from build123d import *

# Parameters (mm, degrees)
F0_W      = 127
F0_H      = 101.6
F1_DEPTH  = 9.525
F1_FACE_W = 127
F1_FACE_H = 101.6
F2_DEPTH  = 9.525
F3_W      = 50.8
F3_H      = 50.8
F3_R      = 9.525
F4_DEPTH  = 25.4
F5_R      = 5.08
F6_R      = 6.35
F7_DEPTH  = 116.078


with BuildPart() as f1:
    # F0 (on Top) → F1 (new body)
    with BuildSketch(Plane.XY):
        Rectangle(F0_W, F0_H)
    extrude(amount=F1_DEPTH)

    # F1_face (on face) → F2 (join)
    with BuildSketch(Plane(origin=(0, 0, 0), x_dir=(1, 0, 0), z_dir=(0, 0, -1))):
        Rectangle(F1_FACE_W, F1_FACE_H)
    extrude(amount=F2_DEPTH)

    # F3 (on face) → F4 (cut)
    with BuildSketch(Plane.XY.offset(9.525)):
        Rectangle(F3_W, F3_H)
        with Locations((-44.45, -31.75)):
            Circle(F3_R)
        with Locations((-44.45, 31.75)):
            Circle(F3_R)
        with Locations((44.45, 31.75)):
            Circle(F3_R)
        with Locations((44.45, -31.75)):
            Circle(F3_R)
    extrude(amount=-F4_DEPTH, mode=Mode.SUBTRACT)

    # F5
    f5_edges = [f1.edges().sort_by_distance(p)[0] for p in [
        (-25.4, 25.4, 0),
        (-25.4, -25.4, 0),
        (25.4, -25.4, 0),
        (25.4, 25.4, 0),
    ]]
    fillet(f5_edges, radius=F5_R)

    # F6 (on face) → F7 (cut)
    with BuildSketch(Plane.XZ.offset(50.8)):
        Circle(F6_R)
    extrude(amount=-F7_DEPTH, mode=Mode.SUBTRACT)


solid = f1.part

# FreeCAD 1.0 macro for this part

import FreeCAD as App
import Part
import Sketcher
from FreeCAD import Vector
Q = App.Units.Quantity


def edges_at(feature, points):
    """Names of the edges that pass closest to the given points."""
    edges = feature.Shape.Edges
    near = lambda p: min(range(len(edges)), key=lambda i: edges[i].distToShape(Part.Vertex(*p))[0])
    return sorted({f"Edge{near(p) + 1}" for p in points})


def add_polygon(sketch, points):
    """Adds a closed chain of lines whose ends are joined by coincident constraints."""
    first, n = sketch.GeometryCount, len(points)
    for a, b in zip(points, points[1:] + points[:1]):
        sketch.addGeometry(Part.LineSegment(App.Vector(*a, 0), App.Vector(*b, 0)), False)
    for i in range(n):
        sketch.addConstraint(Sketcher.Constraint("Coincident", first + i, 2, first + (i + 1) % n, 1))

doc = App.newDocument("Part")
params = doc.addObject("Spreadsheet::Sheet", "Params")
for row, (alias, value) in enumerate([
    ("sketch1_width", "5 in"),
    ("sketch1_height", "4 in"),
    ("pad1_length", "0.375 in"),
    ("sketch2_width", "5 in"),
    ("sketch2_height", "4 in"),
    ("pad2_length", "0.375 in"),
    ("sketch3_diameter", "0.75 in"),
    ("sketch3_width", "2 in"),
    ("pocket1_length", "1 in"),
    ("fillet_radius", "0.2 in"),
    ("sketch4_diameter", "0.5 in"),
    ("pocket2_length", "4.57 in"),
], start=1):
    params.set(f"A{row}", alias)
    params.set(f"B{row}", "=" + value)
    params.setAlias(f"B{row}", alias)

body = doc.addObject("PartDesign::Body", "Body")

# Sketch on XY plane
sketch1 = body.newObject("Sketcher::SketchObject", "Sketch")
sketch1.AttachmentSupport = (doc.getObject("XY_Plane"), [""])
sketch1.MapMode = "FlatFace"
add_polygon(sketch1, [(-63.5, 50.8), (-63.5, -50.8), (63.5, -50.8), (63.5, 50.8)])  # lines 0-3
sketch1.addConstraint(Sketcher.Constraint("Vertical", 0))
sketch1.addConstraint(Sketcher.Constraint("Horizontal", 1))
sketch1.addConstraint(Sketcher.Constraint("Vertical", 2))
sketch1.addConstraint(Sketcher.Constraint("Horizontal", 3))
sketch1.addConstraint(Sketcher.Constraint("Symmetric", 0, 2, 2, 2, -1, 1))
sketch1.addConstraint(Sketcher.Constraint("DistanceX", 1, 1, 1, 2, Q("5 in")))
sketch1.addConstraint(Sketcher.Constraint("DistanceY", 0, 2, 0, 1, Q("4 in")))
sketch1.setExpression("Constraints[9]", "Params.sketch1_width")
sketch1.setExpression("Constraints[10]", "Params.sketch1_height")
pad1 = body.newObject("PartDesign::Pad", "Pad")
pad1.Profile = sketch1
pad1.setExpression("Length", "Params.pad1_length")

# Sketch on XY plane
sketch2 = body.newObject("Sketcher::SketchObject", "Sketch001")
sketch2.AttachmentSupport = (doc.getObject("XY_Plane"), [""])
sketch2.MapMode = "FlatFace"
add_polygon(sketch2, [(-63.5, -50.8), (-63.5, 50.8), (63.5, 50.8), (63.5, -50.8)])  # lines 0-3
sketch2.addConstraint(Sketcher.Constraint("Vertical", 0))
sketch2.addConstraint(Sketcher.Constraint("Horizontal", 1))
sketch2.addConstraint(Sketcher.Constraint("Vertical", 2))
sketch2.addConstraint(Sketcher.Constraint("Horizontal", 3))
sketch2.addConstraint(Sketcher.Constraint("Symmetric", 0, 2, 2, 2, -1, 1))
sketch2.addConstraint(Sketcher.Constraint("DistanceX", 1, 1, 1, 2, Q("5 in")))
sketch2.addConstraint(Sketcher.Constraint("DistanceY", 0, 1, 0, 2, Q("4 in")))
sketch2.setExpression("Constraints[9]", "Params.sketch2_width")
sketch2.setExpression("Constraints[10]", "Params.sketch2_height")
pad2 = body.newObject("PartDesign::Pad", "Pad001")
pad2.Profile = sketch2
pad2.setExpression("Length", "Params.pad2_length")
pad2.Reversed = True

# Sketch on XY plane
sketch3 = body.newObject("Sketcher::SketchObject", "Sketch002")
sketch3.AttachmentSupport = (doc.getObject("XY_Plane"), [""])
sketch3.MapMode = "FlatFace"
sketch3.AttachmentOffset = App.Placement(Vector(0, 0, 0.375 * 25.4), App.Rotation())
add_polygon(sketch3, [(-25.4, 25.4), (-25.4, -25.4), (25.4, -25.4), (25.4, 25.4)])  # lines 0-3
sketch3.addGeometry(Part.Circle(Vector(-44.45, -31.75, 0), Vector(0, 0, 1), 9.525), False)  # 4
sketch3.addGeometry(Part.Circle(Vector(-44.45, 31.75, 0), Vector(0, 0, 1), 9.525), False)  # 5
sketch3.addGeometry(Part.Circle(Vector(44.45, 31.75, 0), Vector(0, 0, 1), 9.525), False)  # 6
sketch3.addGeometry(Part.Circle(Vector(44.45, -31.75, 0), Vector(0, 0, 1), 9.525), False)  # 7
sketch3.addConstraint(Sketcher.Constraint("Vertical", 0))
sketch3.addConstraint(Sketcher.Constraint("Horizontal", 1))
sketch3.addConstraint(Sketcher.Constraint("Vertical", 2))
sketch3.addConstraint(Sketcher.Constraint("Horizontal", 3))
sketch3.addConstraint(Sketcher.Constraint("Equal", 4, 5))
sketch3.addConstraint(Sketcher.Constraint("Equal", 5, 6))
sketch3.addConstraint(Sketcher.Constraint("Equal", 6, 7))
sketch3.addConstraint(Sketcher.Constraint("Symmetric", 4, 3, 6, 3, -1, 1))
sketch3.addConstraint(Sketcher.Constraint("Symmetric", 5, 3, 7, 3, -1, 1))
sketch3.addConstraint(Sketcher.Constraint("Symmetric", 0, 2, 2, 2, -1, 1))
sketch3.addConstraint(Sketcher.Constraint("Symmetric", 5, 3, 6, 3, -2))
sketch3.addConstraint(Sketcher.Constraint("Equal", 3, 0))
sketch3.addConstraint(Sketcher.Constraint("Diameter", 4, Q("0.75 in")))
sketch3.addConstraint(Sketcher.Constraint("DistanceX", 1, 1, 1, 2, Q("2 in")))
sketch3.addConstraint(Sketcher.Constraint("DistanceY", 4, 3, 5, 3, Q("2.5 in")))
sketch3.addConstraint(Sketcher.Constraint("DistanceX", 5, 3, 6, 3, Q("3.5 in")))
sketch3.setExpression("Constraints[16]", "Params.sketch3_diameter")
sketch3.setExpression("Constraints[17]", "Params.sketch3_width")
pocket1 = body.newObject("PartDesign::Pocket", "Pocket")
pocket1.Profile = sketch3
pocket1.setExpression("Length", "Params.pocket1_length")
doc.recompute()

fillet = body.newObject("PartDesign::Fillet", "Fillet")
fillet.Base = (pocket1, edges_at(pocket1, [
    (-25.4, 25.4, 0),
    (-25.4, -25.4, 0),
    (25.4, -25.4, 0),
    (25.4, 25.4, 0),
]))
fillet.setExpression("Radius", "Params.fillet_radius")

# Sketch on XZ plane
sketch4 = body.newObject("Sketcher::SketchObject", "Sketch003")
sketch4.AttachmentSupport = (doc.getObject("XZ_Plane"), [""])
sketch4.MapMode = "FlatFace"
sketch4.AttachmentOffset = App.Placement(Vector(0, 0, 2 * 25.4), App.Rotation())
sketch4.addGeometry(Part.Circle(Vector(0, 0, 0), Vector(0, 0, 1), 6.35), False)
sketch4.addConstraint(Sketcher.Constraint("Coincident", 0, 3, -1, 1))
sketch4.addConstraint(Sketcher.Constraint("Diameter", 0, Q("0.5 in")))
sketch4.setExpression("Constraints[1]", "Params.sketch4_diameter")
pocket2 = body.newObject("PartDesign::Pocket", "Pocket001")
pocket2.Profile = sketch4
pocket2.setExpression("Length", "Params.pocket2_length")

doc.recompute()
